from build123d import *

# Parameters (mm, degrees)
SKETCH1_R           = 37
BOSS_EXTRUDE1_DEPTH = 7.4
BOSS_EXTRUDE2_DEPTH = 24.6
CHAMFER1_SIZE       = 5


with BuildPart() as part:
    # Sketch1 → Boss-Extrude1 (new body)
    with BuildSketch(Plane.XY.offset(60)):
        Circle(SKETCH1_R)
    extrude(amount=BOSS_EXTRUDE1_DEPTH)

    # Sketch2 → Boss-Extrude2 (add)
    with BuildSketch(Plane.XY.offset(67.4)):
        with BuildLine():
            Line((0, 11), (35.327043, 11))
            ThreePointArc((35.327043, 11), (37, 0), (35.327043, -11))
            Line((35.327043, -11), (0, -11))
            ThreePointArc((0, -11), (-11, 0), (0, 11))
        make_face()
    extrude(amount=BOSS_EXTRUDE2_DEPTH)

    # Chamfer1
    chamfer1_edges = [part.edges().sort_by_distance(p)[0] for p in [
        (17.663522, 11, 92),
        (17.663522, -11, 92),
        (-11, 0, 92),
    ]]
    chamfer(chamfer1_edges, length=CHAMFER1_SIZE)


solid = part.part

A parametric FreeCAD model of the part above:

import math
import FreeCAD as App
import Part
import Sketcher

V = App.Vector
Q = App.Units.Quantity


def edges_at(feature, points):
    """Names of the edges that pass closest to the given points."""
    edges = feature.Shape.Edges
    near = lambda p: min(range(len(edges)), key=lambda i: edges[i].distToShape(Part.Vertex(*p))[0])
    return sorted({f"Edge{near(p) + 1}" for p in points})

doc = App.newDocument("Part")
body = doc.addObject("PartDesign::Body", "Body")

sketch1 = body.newObject("Sketcher::SketchObject", "Sketch")
sketch1.AttachmentSupport = (doc.getObject("XY_Plane"), [""])
sketch1.MapMode = "FlatFace"
sketch1.AttachmentOffset = App.Placement(V(0, 0, 60), App.Rotation())
sketch1.addGeometry(Part.Circle(V(0, 0, 0), V(0, 0, 1), 37), False)
sketch1.addConstraint([
    Sketcher.Constraint("Coincident", 0, 3, -1, 1),
    Sketcher.Constraint("Diameter", 0, Q("74 mm")),
])
pad1 = body.newObject("PartDesign::Pad", "Pad")
pad1.Profile = sketch1
pad1.Length = 7.4

sketch2 = body.newObject("Sketcher::SketchObject", "Sketch001")
sketch2.AttachmentSupport = (doc.getObject("XY_Plane"), [""])
sketch2.MapMode = "FlatFace"
sketch2.AttachmentOffset = App.Placement(V(0, 0, 67.4), App.Rotation())
sketch2.addGeometry([
    Part.LineSegment(V(35.327043, 11, 0), V(0, 11, 0)),
    Part.ArcOfCircle(Part.Circle(V(0, 0, 0), V(0, 0, 1), 11), math.radians(90), math.radians(270)),
    Part.LineSegment(V(0, -11, 0), V(35.327043, -11, 0)),
    Part.ArcOfCircle(Part.Circle(V(0.00001, 0, 0), V(0, 0, 1), 36.99999), math.radians(-17.295349), math.radians(17.295349)),
], False)
sketch2.addConstraint([
    Sketcher.Constraint("Tangent", 0, 2, 1, 1),
    Sketcher.Constraint("Tangent", 1, 2, 2, 1),
    Sketcher.Constraint("Coincident", 2, 2, 3, 1),
    Sketcher.Constraint("Coincident", 3, 2, 0, 1),
    Sketcher.Constraint("Horizontal", 0),
    Sketcher.Constraint("Horizontal", 2),
    Sketcher.Constraint("Coincident", 1, 3, -1, 1),
    Sketcher.Constraint("Coincident", 3, 3, -1, 1),
    Sketcher.Constraint("Radius", 1, Q("11 mm")),
    Sketcher.Constraint("Radius", 3, Q("36.99999 mm")),
])
pad2 = body.newObject("PartDesign::Pad", "Pad001")
pad2.Profile = sketch2
pad2.Length = 24.6
doc.recompute()

chamfer = body.newObject("PartDesign::Chamfer", "Chamfer")
chamfer.Base = (pad2, edges_at(pad2, [(17.664, 11, 92), (17.664, -11, 92), (-11, 0, 92)]))
chamfer.Size = 5

doc.recompute()
